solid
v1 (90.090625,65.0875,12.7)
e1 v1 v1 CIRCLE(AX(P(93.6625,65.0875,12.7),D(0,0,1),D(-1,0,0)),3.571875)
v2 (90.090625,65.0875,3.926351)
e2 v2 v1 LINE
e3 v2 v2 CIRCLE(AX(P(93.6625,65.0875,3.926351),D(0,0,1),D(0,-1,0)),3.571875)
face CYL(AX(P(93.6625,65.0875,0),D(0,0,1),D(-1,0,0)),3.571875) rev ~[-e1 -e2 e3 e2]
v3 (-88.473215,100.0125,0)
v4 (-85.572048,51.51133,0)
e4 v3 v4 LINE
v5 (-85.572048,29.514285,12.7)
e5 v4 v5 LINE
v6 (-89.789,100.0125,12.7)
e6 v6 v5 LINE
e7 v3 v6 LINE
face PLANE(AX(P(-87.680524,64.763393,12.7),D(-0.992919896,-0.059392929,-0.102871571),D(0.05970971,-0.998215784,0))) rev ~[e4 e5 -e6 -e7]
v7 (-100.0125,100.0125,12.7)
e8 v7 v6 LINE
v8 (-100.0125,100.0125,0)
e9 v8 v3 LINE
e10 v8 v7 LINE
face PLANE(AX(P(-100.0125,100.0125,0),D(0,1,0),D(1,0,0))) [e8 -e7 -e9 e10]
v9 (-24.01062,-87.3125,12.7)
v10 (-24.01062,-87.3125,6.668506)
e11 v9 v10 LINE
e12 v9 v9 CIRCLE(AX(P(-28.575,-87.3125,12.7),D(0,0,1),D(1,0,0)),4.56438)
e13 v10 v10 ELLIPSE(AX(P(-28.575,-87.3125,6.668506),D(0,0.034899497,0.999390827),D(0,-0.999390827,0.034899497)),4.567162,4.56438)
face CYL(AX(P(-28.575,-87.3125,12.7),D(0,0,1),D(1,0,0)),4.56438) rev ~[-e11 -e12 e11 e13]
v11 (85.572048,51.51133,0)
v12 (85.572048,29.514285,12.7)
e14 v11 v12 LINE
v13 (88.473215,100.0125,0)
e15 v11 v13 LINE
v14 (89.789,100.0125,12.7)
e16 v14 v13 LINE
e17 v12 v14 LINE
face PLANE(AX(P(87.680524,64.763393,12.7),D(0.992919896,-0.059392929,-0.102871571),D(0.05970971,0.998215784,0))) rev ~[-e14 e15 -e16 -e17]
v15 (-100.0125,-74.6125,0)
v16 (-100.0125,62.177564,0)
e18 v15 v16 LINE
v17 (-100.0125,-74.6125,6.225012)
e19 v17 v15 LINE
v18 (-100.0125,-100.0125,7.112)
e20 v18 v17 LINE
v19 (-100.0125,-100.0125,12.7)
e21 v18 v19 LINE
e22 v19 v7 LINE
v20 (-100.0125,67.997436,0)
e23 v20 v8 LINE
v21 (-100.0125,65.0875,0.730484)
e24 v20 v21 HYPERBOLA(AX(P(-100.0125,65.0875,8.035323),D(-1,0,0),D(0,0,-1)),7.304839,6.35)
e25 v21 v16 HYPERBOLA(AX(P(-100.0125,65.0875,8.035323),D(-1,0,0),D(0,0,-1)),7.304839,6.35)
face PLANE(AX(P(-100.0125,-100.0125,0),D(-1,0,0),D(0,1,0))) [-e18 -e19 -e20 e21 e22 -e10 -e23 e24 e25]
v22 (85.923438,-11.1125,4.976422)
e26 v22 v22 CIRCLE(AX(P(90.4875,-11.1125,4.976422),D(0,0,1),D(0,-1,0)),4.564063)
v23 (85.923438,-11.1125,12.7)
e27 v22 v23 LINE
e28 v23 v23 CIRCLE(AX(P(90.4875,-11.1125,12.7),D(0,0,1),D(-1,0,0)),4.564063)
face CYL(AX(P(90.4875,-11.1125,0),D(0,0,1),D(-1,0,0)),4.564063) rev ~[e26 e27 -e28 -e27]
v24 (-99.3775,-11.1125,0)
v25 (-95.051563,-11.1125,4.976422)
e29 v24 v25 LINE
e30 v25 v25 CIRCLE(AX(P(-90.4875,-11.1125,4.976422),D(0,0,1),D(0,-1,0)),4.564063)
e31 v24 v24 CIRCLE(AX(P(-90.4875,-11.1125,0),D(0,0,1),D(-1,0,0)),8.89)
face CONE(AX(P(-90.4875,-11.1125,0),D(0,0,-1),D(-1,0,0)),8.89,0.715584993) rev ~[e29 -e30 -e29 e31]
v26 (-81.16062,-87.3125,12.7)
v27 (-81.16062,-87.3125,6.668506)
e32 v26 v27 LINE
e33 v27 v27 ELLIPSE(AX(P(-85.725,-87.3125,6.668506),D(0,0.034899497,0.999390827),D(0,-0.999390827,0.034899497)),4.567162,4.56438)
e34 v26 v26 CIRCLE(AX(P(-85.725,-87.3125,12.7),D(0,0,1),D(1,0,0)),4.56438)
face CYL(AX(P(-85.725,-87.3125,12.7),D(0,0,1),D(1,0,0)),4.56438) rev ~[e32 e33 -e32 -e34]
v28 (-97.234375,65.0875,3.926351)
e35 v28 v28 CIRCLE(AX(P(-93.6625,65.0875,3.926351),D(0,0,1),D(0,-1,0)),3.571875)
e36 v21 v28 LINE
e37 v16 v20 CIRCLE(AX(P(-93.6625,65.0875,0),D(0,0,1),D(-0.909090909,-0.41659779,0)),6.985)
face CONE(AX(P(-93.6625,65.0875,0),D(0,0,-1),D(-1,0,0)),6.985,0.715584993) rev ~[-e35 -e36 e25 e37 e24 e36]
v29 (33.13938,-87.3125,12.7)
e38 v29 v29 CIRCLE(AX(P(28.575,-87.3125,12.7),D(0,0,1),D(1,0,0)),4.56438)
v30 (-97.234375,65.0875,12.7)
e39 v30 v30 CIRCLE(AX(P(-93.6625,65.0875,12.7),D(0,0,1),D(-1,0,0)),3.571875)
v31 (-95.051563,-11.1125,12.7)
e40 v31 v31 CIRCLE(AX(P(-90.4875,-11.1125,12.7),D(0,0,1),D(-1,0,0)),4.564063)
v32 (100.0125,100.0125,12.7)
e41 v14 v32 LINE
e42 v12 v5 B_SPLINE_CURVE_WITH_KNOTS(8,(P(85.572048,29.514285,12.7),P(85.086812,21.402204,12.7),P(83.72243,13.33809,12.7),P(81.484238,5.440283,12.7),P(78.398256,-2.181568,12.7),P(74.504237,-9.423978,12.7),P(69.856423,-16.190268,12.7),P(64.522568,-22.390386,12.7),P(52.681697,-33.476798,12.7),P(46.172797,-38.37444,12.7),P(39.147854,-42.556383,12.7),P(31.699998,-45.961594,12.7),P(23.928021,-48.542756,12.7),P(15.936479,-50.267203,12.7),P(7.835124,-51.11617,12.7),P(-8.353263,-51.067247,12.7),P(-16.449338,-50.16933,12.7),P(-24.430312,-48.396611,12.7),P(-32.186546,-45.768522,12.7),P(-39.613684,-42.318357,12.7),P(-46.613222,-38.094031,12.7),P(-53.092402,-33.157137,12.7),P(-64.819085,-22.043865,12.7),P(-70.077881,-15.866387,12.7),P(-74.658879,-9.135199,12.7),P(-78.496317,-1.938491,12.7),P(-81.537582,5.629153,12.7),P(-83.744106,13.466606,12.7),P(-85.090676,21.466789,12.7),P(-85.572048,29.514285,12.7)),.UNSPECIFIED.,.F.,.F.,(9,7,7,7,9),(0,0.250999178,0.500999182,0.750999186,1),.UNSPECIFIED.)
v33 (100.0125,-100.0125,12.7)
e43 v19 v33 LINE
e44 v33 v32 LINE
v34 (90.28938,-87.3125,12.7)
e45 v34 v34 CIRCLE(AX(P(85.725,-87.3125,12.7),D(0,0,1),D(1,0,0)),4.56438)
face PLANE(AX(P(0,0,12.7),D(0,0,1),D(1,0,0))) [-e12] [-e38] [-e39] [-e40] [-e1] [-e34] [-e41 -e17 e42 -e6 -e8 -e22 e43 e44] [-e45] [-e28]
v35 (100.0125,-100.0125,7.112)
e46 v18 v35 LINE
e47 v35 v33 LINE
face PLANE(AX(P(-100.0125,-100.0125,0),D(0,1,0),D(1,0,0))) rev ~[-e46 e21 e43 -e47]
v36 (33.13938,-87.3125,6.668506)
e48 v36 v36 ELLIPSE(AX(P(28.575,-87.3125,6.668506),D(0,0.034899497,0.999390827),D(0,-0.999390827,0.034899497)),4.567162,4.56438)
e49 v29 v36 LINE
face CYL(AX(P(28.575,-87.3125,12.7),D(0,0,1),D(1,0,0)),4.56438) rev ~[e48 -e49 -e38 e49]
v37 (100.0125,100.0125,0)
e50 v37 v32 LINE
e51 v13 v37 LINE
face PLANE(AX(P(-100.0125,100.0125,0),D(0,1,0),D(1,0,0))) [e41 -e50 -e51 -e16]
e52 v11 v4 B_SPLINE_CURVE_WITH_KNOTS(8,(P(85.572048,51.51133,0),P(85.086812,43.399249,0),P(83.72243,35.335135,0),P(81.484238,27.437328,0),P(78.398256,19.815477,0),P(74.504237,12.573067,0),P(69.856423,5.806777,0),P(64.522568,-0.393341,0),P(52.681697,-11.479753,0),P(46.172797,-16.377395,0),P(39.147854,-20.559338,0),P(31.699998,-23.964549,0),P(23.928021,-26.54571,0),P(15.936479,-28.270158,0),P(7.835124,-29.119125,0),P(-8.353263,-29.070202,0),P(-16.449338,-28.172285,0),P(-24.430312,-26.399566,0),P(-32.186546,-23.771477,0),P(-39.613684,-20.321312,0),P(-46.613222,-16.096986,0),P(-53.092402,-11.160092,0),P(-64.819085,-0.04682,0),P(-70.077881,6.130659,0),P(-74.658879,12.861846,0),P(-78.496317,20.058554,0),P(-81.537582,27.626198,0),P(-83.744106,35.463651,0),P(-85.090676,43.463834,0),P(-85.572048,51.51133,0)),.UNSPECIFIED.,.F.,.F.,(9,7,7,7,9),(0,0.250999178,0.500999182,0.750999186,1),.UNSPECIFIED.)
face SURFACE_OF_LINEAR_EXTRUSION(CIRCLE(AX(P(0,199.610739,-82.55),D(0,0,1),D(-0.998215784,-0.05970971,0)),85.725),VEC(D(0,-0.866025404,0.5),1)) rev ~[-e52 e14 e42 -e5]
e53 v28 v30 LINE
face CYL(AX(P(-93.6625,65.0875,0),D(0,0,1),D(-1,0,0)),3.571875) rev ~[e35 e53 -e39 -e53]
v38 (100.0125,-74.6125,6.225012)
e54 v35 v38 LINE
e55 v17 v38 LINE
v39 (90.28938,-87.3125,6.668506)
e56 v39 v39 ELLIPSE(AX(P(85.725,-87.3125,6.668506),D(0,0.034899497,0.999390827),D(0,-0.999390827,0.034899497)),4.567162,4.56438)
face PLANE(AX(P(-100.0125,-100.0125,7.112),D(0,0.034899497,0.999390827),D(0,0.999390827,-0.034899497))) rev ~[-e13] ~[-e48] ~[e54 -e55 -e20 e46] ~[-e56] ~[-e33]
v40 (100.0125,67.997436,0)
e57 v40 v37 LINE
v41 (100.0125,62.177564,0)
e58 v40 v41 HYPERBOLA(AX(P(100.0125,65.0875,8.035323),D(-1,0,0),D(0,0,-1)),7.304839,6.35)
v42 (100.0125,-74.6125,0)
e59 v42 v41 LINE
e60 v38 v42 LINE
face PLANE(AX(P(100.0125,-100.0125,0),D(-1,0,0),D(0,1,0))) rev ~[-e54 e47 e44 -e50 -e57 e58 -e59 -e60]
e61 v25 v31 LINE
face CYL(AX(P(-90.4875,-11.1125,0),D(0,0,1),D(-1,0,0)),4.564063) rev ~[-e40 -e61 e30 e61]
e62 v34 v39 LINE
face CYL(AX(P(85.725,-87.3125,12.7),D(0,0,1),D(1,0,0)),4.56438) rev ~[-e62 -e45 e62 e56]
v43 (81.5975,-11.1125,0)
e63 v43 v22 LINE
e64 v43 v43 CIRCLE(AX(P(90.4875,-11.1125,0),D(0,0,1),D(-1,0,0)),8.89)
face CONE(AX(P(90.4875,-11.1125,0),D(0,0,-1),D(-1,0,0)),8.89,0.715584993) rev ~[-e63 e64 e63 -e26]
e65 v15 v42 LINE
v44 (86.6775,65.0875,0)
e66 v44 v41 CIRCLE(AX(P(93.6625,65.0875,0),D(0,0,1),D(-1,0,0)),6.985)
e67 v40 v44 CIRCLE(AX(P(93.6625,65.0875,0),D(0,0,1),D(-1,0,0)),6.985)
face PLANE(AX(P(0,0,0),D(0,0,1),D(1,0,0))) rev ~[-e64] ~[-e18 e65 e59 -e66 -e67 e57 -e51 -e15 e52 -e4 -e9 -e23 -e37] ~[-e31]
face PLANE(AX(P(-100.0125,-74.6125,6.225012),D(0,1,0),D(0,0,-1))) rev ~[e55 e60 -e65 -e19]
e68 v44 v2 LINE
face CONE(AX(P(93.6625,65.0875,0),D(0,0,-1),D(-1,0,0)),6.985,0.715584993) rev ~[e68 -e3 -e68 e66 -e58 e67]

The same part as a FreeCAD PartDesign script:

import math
import FreeCAD as App
import Part
import Sketcher
from FreeCAD import Vector
Q = App.Units.Quantity

doc = App.newDocument("Part")
params = doc.addObject("Spreadsheet::Sheet", "Params")
for row, (alias, value) in enumerate([
    ("sketch1_width", "7.875 in"),
    ("pad1_length", "0.5 in"),
    ("sketch2_width", "1 in"),
    ("sketch2_height", "0.28 in"),
    ("pocket1_length", "9.09 in"),
    ("pocket2_length", "1 in"),
    ("sketch4_diameter", "0.359375 in"),
    ("hole_diameter", "0.359375 in"),
    ("hole_csink_diameter", "0.7 in"),
    ("sketch5_diameter", "0.28125 in"),
    ("hole2_diameter", "0.28125 in"),
    ("hole2_csink_diameter", "0.55 in"),
    ("sketch6_radius", "3.375 in"),
    ("sketch6_width", "7.07 in"),
    ("sketch7_width", "15 in"),
], start=1):
    params.set(f"A{row}", alias)
    params.set(f"B{row}", "=" + value)
    params.setAlias(f"B{row}", alias)

body = doc.addObject("PartDesign::Body", "Body")

sketch1 = body.newObject("Sketcher::SketchObject", "Sketch")
sketch1.AttachmentSupport = (doc.getObject("XY_Plane"), [""])
sketch1.MapMode = "FlatFace"
sketch1.addGeometry([
    Part.LineSegment(Vector(-100.0125, 100.0125, 0), Vector(-100.0125, -100.0125, 0)),
    Part.LineSegment(Vector(-100.0125, -100.0125, 0), Vector(100.0125, -100.0125, 0)),
    Part.LineSegment(Vector(100.0125, -100.0125, 0), Vector(100.0125, 100.0125, 0)),
    Part.LineSegment(Vector(100.0125, 100.0125, 0), Vector(-100.0125, 100.0125, 0)),
], False)
sketch1.addConstraint([
    Sketcher.Constraint("Coincident", 0, 2, 1, 1),
    Sketcher.Constraint("Coincident", 1, 2, 2, 1),
    Sketcher.Constraint("Coincident", 2, 2, 3, 1),
    Sketcher.Constraint("Coincident", 3, 2, 0, 1),
    Sketcher.Constraint("Vertical", 0),
    Sketcher.Constraint("Horizontal", 1),
    Sketcher.Constraint("Vertical", 2),
    Sketcher.Constraint("Horizontal", 3),
    Sketcher.Constraint("Symmetric", 0, 2, 2, 2, -1, 1),
    Sketcher.Constraint("Equal", 3, 0),
    Sketcher.Constraint("DistanceX", 1, 1, 1, 2, Q("7.875 in")),
])
sketch1.setExpression("Constraints[10]", "Params.sketch1_width")
pad1 = body.newObject("PartDesign::Pad", "Pad")
pad1.Profile = sketch1
pad1.setExpression("Length", "Params.pad1_length")

sketch2 = body.newObject("Sketcher::SketchObject", "Sketch001")
sketch2.AttachmentSupport = (doc.getObject("YZ_Plane"), [""])
sketch2.MapMode = "FlatFace"
sketch2.AttachmentOffset = App.Placement(Vector(0, 0, -3.9375 * 25.4), App.Rotation())
sketch2.addGeometry([
    Part.LineSegment(Vector(-100.0125, 0, 0), Vector(-100.0125, 7.112, 0)),
    Part.LineSegment(Vector(-100.0125, 7.112, 0), Vector(-74.6125, 6.225012, 0)),
    Part.LineSegment(Vector(-74.6125, 6.225012, 0), Vector(-74.6125, 0, 0)),
    Part.LineSegment(Vector(-74.6125, 0, 0), Vector(-100.0125, 0, 0)),
], False)
sketch2.addConstraint([
    Sketcher.Constraint("Coincident", 0, 2, 1, 1),
    Sketcher.Constraint("Coincident", 1, 2, 2, 1),
    Sketcher.Constraint("Coincident", 2, 2, 3, 1),
    Sketcher.Constraint("Coincident", 3, 2, 0, 1),
    Sketcher.Constraint("Vertical", 0),
    Sketcher.Constraint("Vertical", 2),
    Sketcher.Constraint("Horizontal", 3),
    Sketcher.Constraint("PointOnObject", 2, 2, -1),
    Sketcher.Constraint("DistanceX", 3, 2, 3, 1, Q("1 in")),
    Sketcher.Constraint("Angle", 1, Q("-2 deg")),
    Sketcher.Constraint("DistanceY", 0, 1, 0, 2, Q("0.28 in")),
    Sketcher.Constraint("DistanceX", 0, 2, -1, 1, Q("3.9375 in")),
])
sketch2.setExpression("Constraints[8]", "Params.sketch2_width")
sketch2.setExpression("Constraints[10]", "Params.sketch2_height")
pocket1 = body.newObject("PartDesign::Pocket", "Pocket")
pocket1.Profile = sketch2
pocket1.setExpression("Length", "Params.pocket1_length")
pocket1.Reversed = True

sketch3 = body.newObject("Sketcher::SketchObject", "Sketch002")
sketch3.AttachmentSupport = (doc.getObject("XY_Plane"), [""])
sketch3.MapMode = "FlatFace"
sketch3.AttachmentOffset = App.Placement(Vector(0, 0, 0.5 * 25.4), App.Rotation())
sketch3.addGeometry([
    Part.Circle(Vector(-85.725, -87.3125, 0), Vector(0, 0, 1), 4.56438),
    Part.Circle(Vector(-28.575, -87.3125, 0), Vector(0, 0, 1), 4.56438),
    Part.Circle(Vector(28.575, -87.3125, 0), Vector(0, 0, 1), 4.56438),
    Part.Circle(Vector(85.725, -87.3125, 0), Vector(0, 0, 1), 4.56438),
], False)
sketch3.addConstraint([
    Sketcher.Constraint("Equal", 0, 1),
    Sketcher.Constraint("Equal", 1, 2),
    Sketcher.Constraint("Equal", 2, 3),
    Sketcher.Constraint("Symmetric", 1, 3, 2, 3, -2),
    Sketcher.Constraint("Symmetric", 0, 3, 3, 3, -2),
    Sketcher.Constraint("Horizontal", 0, 3, 1, 3),
    Sketcher.Constraint("Diameter", 0, Q("0.3594 in")),
    Sketcher.Constraint("DistanceX", 0, 3, 2, 3, Q("4.5 in")),
    Sketcher.Constraint("DistanceX", 0, 3, 1, 3, Q("2.25 in")),
    Sketcher.Constraint("DistanceY", 0, 3, -1, 1, Q("3.4375 in")),
])
pocket2 = body.newObject("PartDesign::Pocket", "Pocket001")
pocket2.Profile = sketch3
pocket2.setExpression("Length", "Params.pocket2_length")

sketch4 = body.newObject("Sketcher::SketchObject", "Sketch003")
sketch4.AttachmentSupport = (doc.getObject("XY_Plane"), [""])
sketch4.MapMode = "FlatFace"
sketch4.addGeometry([
    Part.Circle(Vector(90.4875, -11.1125, 0), Vector(0, 0, 1), 4.564063),
    Part.Circle(Vector(-90.4875, -11.1125, 0), Vector(0, 0, 1), 4.564063),
], False)
sketch4.addConstraint([
    Sketcher.Constraint("Equal", 0, 1),
    Sketcher.Constraint("Symmetric", 0, 3, 1, 3, -2),
    Sketcher.Constraint("Diameter", 0, Q("0.359375 in")),
    Sketcher.Constraint("DistanceX", -1, 1, 0, 3, Q("3.5625 in")),
    Sketcher.Constraint("DistanceY", 0, 3, -1, 1, Q("0.4375 in")),
])
sketch4.setExpression("Constraints[2]", "Params.sketch4_diameter")
doc.recompute()
hole = body.newObject("PartDesign::Hole", "Hole")
hole.Profile = sketch4
hole.ThreadType = "None"
hole.setExpression("Diameter", "Params.hole_diameter")
hole.DepthType = "ThroughAll"
hole.HoleCutType = "Countersink"
hole.setExpression("HoleCutDiameter", "Params.hole_csink_diameter")
hole.HoleCutCountersinkAngle = 82
hole.Reversed = True

sketch5 = body.newObject("Sketcher::SketchObject", "Sketch004")
sketch5.AttachmentSupport = (doc.getObject("XY_Plane"), [""])
sketch5.MapMode = "FlatFace"
sketch5.addGeometry([
    Part.Circle(Vector(93.6625, 65.0875, 0), Vector(0, 0, 1), 3.571875),
    Part.Circle(Vector(-93.6625, 65.0875, 0), Vector(0, 0, 1), 3.571875),
], False)
sketch5.addConstraint([
    Sketcher.Constraint("Equal", 0, 1),
    Sketcher.Constraint("Symmetric", 0, 3, 1, 3, -2),
    Sketcher.Constraint("Diameter", 0, Q("0.28125 in")),
    Sketcher.Constraint("DistanceX", -1, 1, 0, 3, Q("3.6875 in")),
    Sketcher.Constraint("DistanceY", -1, 1, 0, 3, Q("2.5625 in")),
])
sketch5.setExpression("Constraints[2]", "Params.sketch5_diameter")
doc.recompute()
hole2 = body.newObject("PartDesign::Hole", "Hole001")
hole2.Profile = sketch5
hole2.ThreadType = "None"
hole2.setExpression("Diameter", "Params.hole2_diameter")
hole2.DepthType = "ThroughAll"
hole2.HoleCutType = "Countersink"
hole2.setExpression("HoleCutDiameter", "Params.hole2_csink_diameter")
hole2.HoleCutCountersinkAngle = 82
hole2.Reversed = True

sketch6 = body.newObject("Sketcher::SketchObject", "Sketch005")
sketch6.AttachmentSupport = (doc.getObject("XY_Plane"), [""])
sketch6.MapMode = "FlatFace"
sketch6.AttachmentOffset = App.Placement(Vector(0, 0, 0.5 * 25.4), App.Rotation())
sketch6.addGeometry([
    Part.LineSegment(Vector(85.572048, 29.514285, 0), Vector(89.789, 100.0125, 0)),
    Part.LineSegment(Vector(89.789, 100.0125, 0), Vector(-89.789, 100.0125, 0)),
    Part.LineSegment(Vector(-89.789, 100.0125, 0), Vector(-85.572048, 29.514285, 0)),
    Part.ArcOfCircle(Part.Circle(Vector(0, 34.6329, 0), Vector(0, 0, 1), 85.725), math.radians(-176.576849), math.radians(-3.423151)),
], False)
sketch6.addConstraint([
    Sketcher.Constraint("Coincident", 0, 2, 1, 1),
    Sketcher.Constraint("Coincident", 1, 2, 2, 1),
    Sketcher.Constraint("Tangent", 2, 2, 3, 1),
    Sketcher.Constraint("Tangent", 3, 2, 0, 1),
    Sketcher.Constraint("Horizontal", 1),
    Sketcher.Constraint("Symmetric", 2, 2, 3, 2, -2),
    Sketcher.Constraint("Radius", 3, Q("3.375 in")),
    Sketcher.Constraint("DistanceX", 1, 2, 1, 1, Q("7.07 in")),
    Sketcher.Constraint("DistanceY", -1, 1, 0, 2, Q("3.9375 in")),
    Sketcher.Constraint("DistanceY", 3, 3, 0, 2, Q("2.574 in")),
])
sketch6.setExpression("Constraints[6]", "Params.sketch6_radius")
sketch6.setExpression("Constraints[7]", "Params.sketch6_width")

sketch7 = body.newObject("Sketcher::SketchObject", "Sketch006")
sketch7.Placement = App.Placement(Vector(0, -7.273764, -12.598528), App.Rotation(Vector(0, -0.866025404, 0.5), Vector(1, 0, 0), Vector(0, 0.5, 0.866025404), "ZXY"))
sketch7.addGeometry(Part.LineSegment(Vector(-139.902944, 0, 0), Vector(241.097057, 0, 0)), False)
sketch7.addConstraint([
    Sketcher.Constraint("Horizontal", 0),
    Sketcher.Constraint("PointOnObject", 0, 1, -1),
    Sketcher.Constraint("DistanceX", 0, 1, 0, 2, Q("15 in")),
    Sketcher.Constraint("DistanceX", 0, 1, -1, 1, Q("139.902944 mm")),
])
sketch7.setExpression("Constraints[2]", "Params.sketch7_width")
doc.recompute()

subtractivepipe = body.newObject("PartDesign::SubtractivePipe", "SubtractivePipe")
subtractivepipe.Profile = sketch6
subtractivepipe.Spine = (sketch7, ["Edge1"])

doc.recompute()
